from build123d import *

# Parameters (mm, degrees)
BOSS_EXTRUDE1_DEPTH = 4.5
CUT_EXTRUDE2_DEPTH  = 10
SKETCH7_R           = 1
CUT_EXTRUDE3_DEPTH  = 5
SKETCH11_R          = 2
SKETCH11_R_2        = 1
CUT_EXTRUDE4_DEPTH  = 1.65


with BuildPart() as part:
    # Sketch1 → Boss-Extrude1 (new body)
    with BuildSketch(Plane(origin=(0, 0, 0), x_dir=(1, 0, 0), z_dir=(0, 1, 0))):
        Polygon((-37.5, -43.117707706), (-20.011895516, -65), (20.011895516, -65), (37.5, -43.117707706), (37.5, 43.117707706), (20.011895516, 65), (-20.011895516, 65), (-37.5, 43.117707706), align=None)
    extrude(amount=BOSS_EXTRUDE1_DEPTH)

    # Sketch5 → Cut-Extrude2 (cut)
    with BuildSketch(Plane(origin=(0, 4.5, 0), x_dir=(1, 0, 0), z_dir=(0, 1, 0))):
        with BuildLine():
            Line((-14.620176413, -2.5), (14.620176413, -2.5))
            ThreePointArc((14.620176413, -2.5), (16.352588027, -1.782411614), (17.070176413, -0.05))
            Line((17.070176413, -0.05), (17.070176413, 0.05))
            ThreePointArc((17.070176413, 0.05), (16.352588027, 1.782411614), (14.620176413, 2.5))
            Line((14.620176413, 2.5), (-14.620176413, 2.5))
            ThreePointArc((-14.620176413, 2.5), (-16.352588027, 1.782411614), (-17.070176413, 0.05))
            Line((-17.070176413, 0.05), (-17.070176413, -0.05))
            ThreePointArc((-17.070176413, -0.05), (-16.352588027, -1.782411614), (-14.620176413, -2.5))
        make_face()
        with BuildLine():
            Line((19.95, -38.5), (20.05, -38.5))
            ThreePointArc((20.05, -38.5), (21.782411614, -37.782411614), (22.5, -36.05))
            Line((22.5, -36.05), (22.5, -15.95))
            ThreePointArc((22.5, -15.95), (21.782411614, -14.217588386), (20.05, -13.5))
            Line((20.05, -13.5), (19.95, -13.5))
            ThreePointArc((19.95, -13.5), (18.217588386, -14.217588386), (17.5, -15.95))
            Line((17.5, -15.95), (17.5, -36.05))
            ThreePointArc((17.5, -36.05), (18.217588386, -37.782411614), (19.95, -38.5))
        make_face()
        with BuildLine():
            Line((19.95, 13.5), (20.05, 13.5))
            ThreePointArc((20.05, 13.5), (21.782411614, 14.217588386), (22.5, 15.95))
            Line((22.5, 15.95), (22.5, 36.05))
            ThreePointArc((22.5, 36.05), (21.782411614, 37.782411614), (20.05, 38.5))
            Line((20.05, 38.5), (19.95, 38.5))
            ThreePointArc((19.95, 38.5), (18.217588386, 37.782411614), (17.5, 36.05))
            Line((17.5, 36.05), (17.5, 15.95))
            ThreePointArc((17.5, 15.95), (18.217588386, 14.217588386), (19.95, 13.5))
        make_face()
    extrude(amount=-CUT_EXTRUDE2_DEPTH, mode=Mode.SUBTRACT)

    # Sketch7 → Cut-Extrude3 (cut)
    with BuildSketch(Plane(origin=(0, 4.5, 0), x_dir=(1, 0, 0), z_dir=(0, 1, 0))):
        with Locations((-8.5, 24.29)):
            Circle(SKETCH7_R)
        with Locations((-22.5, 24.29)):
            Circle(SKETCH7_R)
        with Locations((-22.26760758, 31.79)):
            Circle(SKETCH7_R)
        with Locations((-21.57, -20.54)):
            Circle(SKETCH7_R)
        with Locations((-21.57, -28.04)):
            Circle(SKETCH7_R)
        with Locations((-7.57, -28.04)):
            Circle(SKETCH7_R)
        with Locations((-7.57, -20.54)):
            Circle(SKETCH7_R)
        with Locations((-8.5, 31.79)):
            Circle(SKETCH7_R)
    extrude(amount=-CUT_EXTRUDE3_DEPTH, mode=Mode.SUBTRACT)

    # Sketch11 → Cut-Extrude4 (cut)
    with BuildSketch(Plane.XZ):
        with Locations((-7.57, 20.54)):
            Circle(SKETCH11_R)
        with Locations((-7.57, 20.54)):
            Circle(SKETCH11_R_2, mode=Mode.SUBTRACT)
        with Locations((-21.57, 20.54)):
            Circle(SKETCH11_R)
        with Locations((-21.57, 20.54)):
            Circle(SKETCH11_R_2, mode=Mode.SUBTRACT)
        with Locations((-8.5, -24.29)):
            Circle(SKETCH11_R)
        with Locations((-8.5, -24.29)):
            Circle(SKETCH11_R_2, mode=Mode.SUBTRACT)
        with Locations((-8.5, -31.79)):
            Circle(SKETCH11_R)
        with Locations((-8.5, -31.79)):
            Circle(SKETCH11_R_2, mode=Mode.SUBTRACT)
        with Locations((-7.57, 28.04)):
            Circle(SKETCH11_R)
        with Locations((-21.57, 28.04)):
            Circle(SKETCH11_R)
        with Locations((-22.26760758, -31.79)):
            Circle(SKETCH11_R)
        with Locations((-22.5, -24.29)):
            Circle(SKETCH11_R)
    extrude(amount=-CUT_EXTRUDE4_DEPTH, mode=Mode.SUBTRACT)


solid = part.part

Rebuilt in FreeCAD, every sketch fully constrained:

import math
import FreeCAD as App
import Part
import Sketcher
Q = App.Units.Quantity


def add_polygon(sketch, points):
    """Adds a closed chain of lines whose ends are joined by coincident constraints."""
    first, n = sketch.GeometryCount, len(points)
    for a, b in zip(points, points[1:] + points[:1]):
        sketch.addGeometry(Part.LineSegment(App.Vector(*a, 0), App.Vector(*b, 0)), False)
    for i in range(n):
        sketch.addConstraint(Sketcher.Constraint("Coincident", first + i, 2, first + (i + 1) % n, 1))

doc = App.newDocument("Part")
body = doc.addObject("PartDesign::Body", "Body")

# Sketch on XZ plane
sketch1 = body.newObject("Sketcher::SketchObject", "Sketch")
sketch1.AttachmentSupport = (doc.getObject("XZ_Plane"), [""])
sketch1.MapMode = "FlatFace"
add_polygon(sketch1, [(-38, 43), (-20, 65), (20, 65), (38, 43), (38, -43), (20, -65), (-20, -65), (-38, -43)])  # lines 0-7
sketch1.addConstraint([
    Sketcher.Constraint("Horizontal", 1),
    Sketcher.Constraint("Vertical", 3),
    Sketcher.Constraint("Horizontal", 5),
    Sketcher.Constraint("Vertical", 7),
    Sketcher.Constraint("Symmetric", 0, 2, 4, 2, -1, 1),
    Sketcher.Constraint("Symmetric", 2, 2, 6, 2, -1, 1),
    Sketcher.Constraint("Parallel", 0, 4),
    Sketcher.Constraint("Parallel", 2, 6),
    Sketcher.Constraint("Horizontal", 3, 2, 6, 2),
    Sketcher.Constraint("Vertical", 1, 2, 4, 2),
    Sketcher.Constraint("DistanceY", -1, 1, 0, 2, Q("65 mm")),
    Sketcher.Constraint("DistanceX", 6, 2, 3, 2, Q("75 mm")),
    Sketcher.Constraint("DistanceX", 1, 1, 1, 2, Q("40.023791 mm")),
    Sketcher.Constraint("DistanceY", 3, 2, 3, 1, Q("86.235415 mm")),
])
pad1 = body.newObject("PartDesign::Pad", "Pad")
pad1.Profile = sketch1
pad1.Length = 4.5
pad1.Reversed = True

# Sketch on XZ plane
sketch2 = body.newObject("Sketcher::SketchObject", "Sketch001")
sketch2.AttachmentSupport = (doc.getObject("XZ_Plane"), [""])
sketch2.MapMode = "FlatFace"
sketch2.AttachmentOffset = App.Placement(App.Vector(0, 0, -4.5), App.Rotation())
sketch2.addGeometry([
    Part.LineSegment(App.Vector(-14.62, 2.5, 0), App.Vector(14.62, 2.5, 0)),  # 0
    Part.ArcOfCircle(Part.Circle(App.Vector(14.62, 0.05, 0), App.Vector(0, 0, 1), 2.45), math.radians(0), math.radians(90)),  # 1
    Part.LineSegment(App.Vector(17.07, 0.05, 0), App.Vector(17.07, -0.05, 0)),  # 2
    Part.ArcOfCircle(Part.Circle(App.Vector(14.62, -0.05, 0), App.Vector(0, 0, 1), 2.45), math.radians(-90), math.radians(0)),  # 3
    Part.LineSegment(App.Vector(14.62, -2.5, 0), App.Vector(-14.62, -2.5, 0)),  # 4
    Part.ArcOfCircle(Part.Circle(App.Vector(-14.62, -0.05, 0), App.Vector(0, 0, 1), 2.45), math.radians(180), math.radians(270)),  # 5
    Part.LineSegment(App.Vector(-17.07, -0.05, 0), App.Vector(-17.07, 0.05, 0)),  # 6
    Part.ArcOfCircle(Part.Circle(App.Vector(-14.62, 0.05, 0), App.Vector(0, 0, 1), 2.45), math.radians(90), math.radians(180)),  # 7
    Part.LineSegment(App.Vector(19.95, 38.5, 0), App.Vector(20.05, 38.5, 0)),  # 8
    Part.ArcOfCircle(Part.Circle(App.Vector(20.05, 36.05, 0), App.Vector(0, 0, 1), 2.45), math.radians(0), math.radians(90)),  # 9
    Part.LineSegment(App.Vector(22.5, 36.05, 0), App.Vector(22.5, 15.95, 0)),  # 10
    Part.ArcOfCircle(Part.Circle(App.Vector(20.05, 15.95, 0), App.Vector(0, 0, 1), 2.45), math.radians(-90), math.radians(0)),  # 11
    Part.LineSegment(App.Vector(20.05, 13.5, 0), App.Vector(19.95, 13.5, 0)),  # 12
    Part.ArcOfCircle(Part.Circle(App.Vector(19.95, 15.95, 0), App.Vector(0, 0, 1), 2.45), math.radians(180), math.radians(270)),  # 13
    Part.LineSegment(App.Vector(17.5, 15.95, 0), App.Vector(17.5, 36.05, 0)),  # 14
    Part.ArcOfCircle(Part.Circle(App.Vector(19.95, 36.05, 0), App.Vector(0, 0, 1), 2.45), math.radians(90), math.radians(180)),  # 15
    Part.LineSegment(App.Vector(19.95, -13.5, 0), App.Vector(20.05, -13.5, 0)),  # 16
    Part.ArcOfCircle(Part.Circle(App.Vector(20.05, -15.95, 0), App.Vector(0, 0, 1), 2.45), math.radians(0), math.radians(90)),  # 17
    Part.LineSegment(App.Vector(22.5, -15.95, 0), App.Vector(22.5, -36.05, 0)),  # 18
    Part.ArcOfCircle(Part.Circle(App.Vector(20.05, -36.05, 0), App.Vector(0, 0, 1), 2.45), math.radians(-90), math.radians(0)),  # 19
    Part.LineSegment(App.Vector(20.05, -38.5, 0), App.Vector(19.95, -38.5, 0)),  # 20
    Part.ArcOfCircle(Part.Circle(App.Vector(19.95, -36.05, 0), App.Vector(0, 0, 1), 2.45), math.radians(180), math.radians(270)),  # 21
    Part.LineSegment(App.Vector(17.5, -36.05, 0), App.Vector(17.5, -15.95, 0)),  # 22
    Part.ArcOfCircle(Part.Circle(App.Vector(19.95, -15.95, 0), App.Vector(0, 0, 1), 2.45), math.radians(90), math.radians(180)),  # 23
], False)
sketch2.addConstraint([
    Sketcher.Constraint("Tangent", 0, 2, 1, 2),
    Sketcher.Constraint("Tangent", 1, 1, 2, 1),
    Sketcher.Constraint("Tangent", 2, 2, 3, 2),
    Sketcher.Constraint("Tangent", 3, 1, 4, 1),
    Sketcher.Constraint("Tangent", 4, 2, 5, 2),
    Sketcher.Constraint("Tangent", 5, 1, 6, 1),
    Sketcher.Constraint("Tangent", 6, 2, 7, 2),
    Sketcher.Constraint("Tangent", 7, 1, 0, 1),
    Sketcher.Constraint("Tangent", 8, 2, 9, 2),
    Sketcher.Constraint("Tangent", 9, 1, 10, 1),
    Sketcher.Constraint("Tangent", 10, 2, 11, 2),
    Sketcher.Constraint("Tangent", 11, 1, 12, 1),
    Sketcher.Constraint("Tangent", 12, 2, 13, 2),
    Sketcher.Constraint("Tangent", 13, 1, 14, 1),
    Sketcher.Constraint("Tangent", 14, 2, 15, 2),
    Sketcher.Constraint("Tangent", 15, 1, 8, 1),
    Sketcher.Constraint("Tangent", 16, 2, 17, 2),
    Sketcher.Constraint("Tangent", 17, 1, 18, 1),
    Sketcher.Constraint("Tangent", 18, 2, 19, 2),
    Sketcher.Constraint("Tangent", 19, 1, 20, 1),
    Sketcher.Constraint("Tangent", 20, 2, 21, 2),
    Sketcher.Constraint("Tangent", 21, 1, 22, 1),
    Sketcher.Constraint("Tangent", 22, 2, 23, 2),
    Sketcher.Constraint("Tangent", 23, 1, 16, 1),
    Sketcher.Constraint("Horizontal", 0),
    Sketcher.Constraint("Vertical", 2),
    Sketcher.Constraint("Horizontal", 4),
    Sketcher.Constraint("Vertical", 6),
    Sketcher.Constraint("Horizontal", 8),
    Sketcher.Constraint("Vertical", 10),
    Sketcher.Constraint("Horizontal", 12),
    Sketcher.Constraint("Vertical", 14),
    Sketcher.Constraint("Horizontal", 16),
    Sketcher.Constraint("Vertical", 18),
    Sketcher.Constraint("Horizontal", 20),
    Sketcher.Constraint("Vertical", 22),
    Sketcher.Constraint("Equal", 1, 3),
    Sketcher.Constraint("Equal", 3, 5),
    Sketcher.Constraint("Equal", 5, 7),
    Sketcher.Constraint("Equal", 7, 9),
    Sketcher.Constraint("Equal", 9, 11),
    Sketcher.Constraint("Equal", 11, 13),
    Sketcher.Constraint("Equal", 13, 15),
    Sketcher.Constraint("Equal", 15, 17),
    Sketcher.Constraint("Equal", 17, 19),
    Sketcher.Constraint("Equal", 19, 21),
    Sketcher.Constraint("Equal", 21, 23),
    Sketcher.Constraint("Symmetric", 1, 3, 5, 3, -1, 1),
    Sketcher.Constraint("Symmetric", 11, 3, 17, 3, -1),
    Sketcher.Constraint("Symmetric", 15, 3, 21, 3, -1),
    Sketcher.Constraint("Equal", 20, 2),
    Sketcher.Constraint("Radius", 1, Q("2.45 mm")),
    Sketcher.Constraint("DistanceX", 8, 1, 8, 2, Q("0.1 mm")),
    Sketcher.Constraint("DistanceY", 10, 2, 10, 1, Q("20.1 mm")),
    Sketcher.Constraint("DistanceY", 1, 3, 9, 3, Q("36 mm")),
    Sketcher.Constraint("DistanceX", -1, 1, 9, 1, Q("22.5 mm")),
    Sketcher.Constraint("DistanceX", 0, 1, 0, 2, Q("29.240353 mm")),
])
pocket1 = body.newObject("PartDesign::Pocket", "Pocket")
pocket1.Profile = sketch2
pocket1.Length = 10
pocket1.Reversed = True

# Sketch on XZ plane
sketch3 = body.newObject("Sketcher::SketchObject", "Sketch002")
sketch3.AttachmentSupport = (doc.getObject("XZ_Plane"), [""])
sketch3.MapMode = "FlatFace"
sketch3.AttachmentOffset = App.Placement(App.Vector(0, 0, -4.5), App.Rotation())
sketch3.addGeometry([
    Part.Circle(App.Vector(-8.5, -24.3, 0), App.Vector(0, 0, 1), 1),  # 0
    Part.Circle(App.Vector(-22.5, -24.3, 0), App.Vector(0, 0, 1), 1),  # 1
    Part.Circle(App.Vector(-22.3, -31.8, 0), App.Vector(0, 0, 1), 1),  # 2
    Part.Circle(App.Vector(-21.6, 20.5, 0), App.Vector(0, 0, 1), 1),  # 3
    Part.Circle(App.Vector(-21.6, 28, 0), App.Vector(0, 0, 1), 1),  # 4
    Part.Circle(App.Vector(-7.6, 28, 0), App.Vector(0, 0, 1), 1),  # 5
    Part.Circle(App.Vector(-7.6, 20.5, 0), App.Vector(0, 0, 1), 1),  # 6
    Part.Circle(App.Vector(-8.5, -31.8, 0), App.Vector(0, 0, 1), 1),  # 7
], False)
sketch3.addConstraint([
    Sketcher.Constraint("Equal", 0, 1),
    Sketcher.Constraint("Equal", 1, 2),
    Sketcher.Constraint("Equal", 2, 3),
    Sketcher.Constraint("Equal", 3, 4),
    Sketcher.Constraint("Equal", 4, 5),
    Sketcher.Constraint("Equal", 5, 6),
    Sketcher.Constraint("Equal", 6, 7),
    Sketcher.Constraint("Horizontal", 0, 3, 1, 3),
    Sketcher.Constraint("Horizontal", 4, 3, 5, 3),
    Sketcher.Constraint("Horizontal", 3, 3, 6, 3),
    Sketcher.Constraint("Horizontal", 2, 3, 7, 3),
    Sketcher.Constraint("Vertical", 3, 3, 4, 3),
    Sketcher.Constraint("Vertical", 5, 3, 6, 3),
    Sketcher.Constraint("Vertical", 0, 3, 7, 3),
    Sketcher.Constraint("Diameter", 0, Q("2 mm")),
    Sketcher.Constraint("DistanceX", 1, 3, 0, 3, Q("14 mm")),
    Sketcher.Constraint("DistanceX", 4, 3, 5, 3, Q("14 mm")),
    Sketcher.Constraint("DistanceX", 0, 3, -1, 1, Q("8.5 mm")),
    Sketcher.Constraint("DistanceY", 2, 3, 1, 3, Q("7.5 mm")),
    Sketcher.Constraint("DistanceY", 3, 3, 4, 3, Q("7.5 mm")),
    Sketcher.Constraint("DistanceY", 0, 3, -1, 1, Q("24.29 mm")),
    Sketcher.Constraint("DistanceX", 3, 3, -1, 1, Q("21.57 mm")),
    Sketcher.Constraint("DistanceY", -1, 1, 3, 3, Q("20.54 mm")),
    Sketcher.Constraint("DistanceX", 2, 3, -1, 1, Q("22.267608 mm")),
])
pocket2 = body.newObject("PartDesign::Pocket", "Pocket001")
pocket2.Profile = sketch3
pocket2.Length = 5
pocket2.Reversed = True

# Sketch on XZ plane
sketch4 = body.newObject("Sketcher::SketchObject", "Sketch003")
sketch4.AttachmentSupport = (doc.getObject("XZ_Plane"), [""])
sketch4.MapMode = "FlatFace"
sketch4.addGeometry([
    Part.Circle(App.Vector(-7.6, 20.5, 0), App.Vector(0, 0, 1), 2),  # 0
    Part.Circle(App.Vector(-7.6, 20.5, 0), App.Vector(0, 0, 1), 1),  # 1
    Part.Circle(App.Vector(-21.6, 20.5, 0), App.Vector(0, 0, 1), 2),  # 2
    Part.Circle(App.Vector(-21.6, 20.5, 0), App.Vector(0, 0, 1), 1),  # 3
    Part.Circle(App.Vector(-8.5, -24.3, 0), App.Vector(0, 0, 1), 2),  # 4
    Part.Circle(App.Vector(-8.5, -24.3, 0), App.Vector(0, 0, 1), 1),  # 5
    Part.Circle(App.Vector(-8.5, -31.8, 0), App.Vector(0, 0, 1), 2),  # 6
    Part.Circle(App.Vector(-8.5, -31.8, 0), App.Vector(0, 0, 1), 1),  # 7
    Part.Circle(App.Vector(-7.6, 28, 0), App.Vector(0, 0, 1), 2),  # 8
    Part.Circle(App.Vector(-21.6, 28, 0), App.Vector(0, 0, 1), 2),  # 9
    Part.Circle(App.Vector(-22.3, -31.8, 0), App.Vector(0, 0, 1), 2),  # 10
    Part.Circle(App.Vector(-22.5, -24.3, 0), App.Vector(0, 0, 1), 2),  # 11
], False)
sketch4.addConstraint([
    Sketcher.Constraint("Coincident", 1, 3, 0, 3),
    Sketcher.Constraint("Coincident", 3, 3, 2, 3),
    Sketcher.Constraint("Coincident", 5, 3, 4, 3),
    Sketcher.Constraint("Coincident", 7, 3, 6, 3),
    Sketcher.Constraint("Equal", 0, 2),
    Sketcher.Constraint("Equal", 1, 3),
    Sketcher.Constraint("Equal", 2, 4),
    Sketcher.Constraint("Equal", 3, 5),
    Sketcher.Constraint("Equal", 4, 6),
    Sketcher.Constraint("Equal", 5, 7),
    Sketcher.Constraint("Equal", 6, 8),
    Sketcher.Constraint("Equal", 8, 9),
    Sketcher.Constraint("Equal", 9, 10),
    Sketcher.Constraint("Equal", 10, 11),
    Sketcher.Constraint("Horizontal", 1, 3, 2, 3),
    Sketcher.Constraint("Horizontal", 8, 3, 9, 3),
    Sketcher.Constraint("Horizontal", 7, 3, 10, 3),
    Sketcher.Constraint("Horizontal", 5, 3, 11, 3),
    Sketcher.Constraint("Vertical", 5, 3, 6, 3),
    Sketcher.Constraint("Vertical", 1, 3, 8, 3),
    Sketcher.Constraint("Vertical", 3, 3, 9, 3),
    Sketcher.Constraint("Diameter", 0, Q("4 mm")),
    Sketcher.Constraint("Diameter", 1, Q("2 mm")),
    Sketcher.Constraint("DistanceX", 2, 3, 0, 3, Q("14 mm")),
    Sketcher.Constraint("DistanceX", 11, 3, 4, 3, Q("14 mm")),
    Sketcher.Constraint("DistanceX", 4, 3, -1, 1, Q("8.5 mm")),
    Sketcher.Constraint("DistanceY", 6, 3, 4, 3, Q("7.5 mm")),
    Sketcher.Constraint("DistanceY", 0, 3, 8, 3, Q("7.5 mm")),
    Sketcher.Constraint("DistanceX", 0, 3, -1, 1, Q("7.57 mm")),
    Sketcher.Constraint("DistanceY", -1, 1, 0, 3, Q("20.54 mm")),
    Sketcher.Constraint("DistanceY", 4, 3, -1, 1, Q("24.29 mm")),
    Sketcher.Constraint("DistanceX", 10, 3, -1, 1, Q("22.267608 mm")),
])
pocket3 = body.newObject("PartDesign::Pocket", "Pocket002")
pocket3.Profile = sketch4
pocket3.Length = 1.65

doc.recompute()
